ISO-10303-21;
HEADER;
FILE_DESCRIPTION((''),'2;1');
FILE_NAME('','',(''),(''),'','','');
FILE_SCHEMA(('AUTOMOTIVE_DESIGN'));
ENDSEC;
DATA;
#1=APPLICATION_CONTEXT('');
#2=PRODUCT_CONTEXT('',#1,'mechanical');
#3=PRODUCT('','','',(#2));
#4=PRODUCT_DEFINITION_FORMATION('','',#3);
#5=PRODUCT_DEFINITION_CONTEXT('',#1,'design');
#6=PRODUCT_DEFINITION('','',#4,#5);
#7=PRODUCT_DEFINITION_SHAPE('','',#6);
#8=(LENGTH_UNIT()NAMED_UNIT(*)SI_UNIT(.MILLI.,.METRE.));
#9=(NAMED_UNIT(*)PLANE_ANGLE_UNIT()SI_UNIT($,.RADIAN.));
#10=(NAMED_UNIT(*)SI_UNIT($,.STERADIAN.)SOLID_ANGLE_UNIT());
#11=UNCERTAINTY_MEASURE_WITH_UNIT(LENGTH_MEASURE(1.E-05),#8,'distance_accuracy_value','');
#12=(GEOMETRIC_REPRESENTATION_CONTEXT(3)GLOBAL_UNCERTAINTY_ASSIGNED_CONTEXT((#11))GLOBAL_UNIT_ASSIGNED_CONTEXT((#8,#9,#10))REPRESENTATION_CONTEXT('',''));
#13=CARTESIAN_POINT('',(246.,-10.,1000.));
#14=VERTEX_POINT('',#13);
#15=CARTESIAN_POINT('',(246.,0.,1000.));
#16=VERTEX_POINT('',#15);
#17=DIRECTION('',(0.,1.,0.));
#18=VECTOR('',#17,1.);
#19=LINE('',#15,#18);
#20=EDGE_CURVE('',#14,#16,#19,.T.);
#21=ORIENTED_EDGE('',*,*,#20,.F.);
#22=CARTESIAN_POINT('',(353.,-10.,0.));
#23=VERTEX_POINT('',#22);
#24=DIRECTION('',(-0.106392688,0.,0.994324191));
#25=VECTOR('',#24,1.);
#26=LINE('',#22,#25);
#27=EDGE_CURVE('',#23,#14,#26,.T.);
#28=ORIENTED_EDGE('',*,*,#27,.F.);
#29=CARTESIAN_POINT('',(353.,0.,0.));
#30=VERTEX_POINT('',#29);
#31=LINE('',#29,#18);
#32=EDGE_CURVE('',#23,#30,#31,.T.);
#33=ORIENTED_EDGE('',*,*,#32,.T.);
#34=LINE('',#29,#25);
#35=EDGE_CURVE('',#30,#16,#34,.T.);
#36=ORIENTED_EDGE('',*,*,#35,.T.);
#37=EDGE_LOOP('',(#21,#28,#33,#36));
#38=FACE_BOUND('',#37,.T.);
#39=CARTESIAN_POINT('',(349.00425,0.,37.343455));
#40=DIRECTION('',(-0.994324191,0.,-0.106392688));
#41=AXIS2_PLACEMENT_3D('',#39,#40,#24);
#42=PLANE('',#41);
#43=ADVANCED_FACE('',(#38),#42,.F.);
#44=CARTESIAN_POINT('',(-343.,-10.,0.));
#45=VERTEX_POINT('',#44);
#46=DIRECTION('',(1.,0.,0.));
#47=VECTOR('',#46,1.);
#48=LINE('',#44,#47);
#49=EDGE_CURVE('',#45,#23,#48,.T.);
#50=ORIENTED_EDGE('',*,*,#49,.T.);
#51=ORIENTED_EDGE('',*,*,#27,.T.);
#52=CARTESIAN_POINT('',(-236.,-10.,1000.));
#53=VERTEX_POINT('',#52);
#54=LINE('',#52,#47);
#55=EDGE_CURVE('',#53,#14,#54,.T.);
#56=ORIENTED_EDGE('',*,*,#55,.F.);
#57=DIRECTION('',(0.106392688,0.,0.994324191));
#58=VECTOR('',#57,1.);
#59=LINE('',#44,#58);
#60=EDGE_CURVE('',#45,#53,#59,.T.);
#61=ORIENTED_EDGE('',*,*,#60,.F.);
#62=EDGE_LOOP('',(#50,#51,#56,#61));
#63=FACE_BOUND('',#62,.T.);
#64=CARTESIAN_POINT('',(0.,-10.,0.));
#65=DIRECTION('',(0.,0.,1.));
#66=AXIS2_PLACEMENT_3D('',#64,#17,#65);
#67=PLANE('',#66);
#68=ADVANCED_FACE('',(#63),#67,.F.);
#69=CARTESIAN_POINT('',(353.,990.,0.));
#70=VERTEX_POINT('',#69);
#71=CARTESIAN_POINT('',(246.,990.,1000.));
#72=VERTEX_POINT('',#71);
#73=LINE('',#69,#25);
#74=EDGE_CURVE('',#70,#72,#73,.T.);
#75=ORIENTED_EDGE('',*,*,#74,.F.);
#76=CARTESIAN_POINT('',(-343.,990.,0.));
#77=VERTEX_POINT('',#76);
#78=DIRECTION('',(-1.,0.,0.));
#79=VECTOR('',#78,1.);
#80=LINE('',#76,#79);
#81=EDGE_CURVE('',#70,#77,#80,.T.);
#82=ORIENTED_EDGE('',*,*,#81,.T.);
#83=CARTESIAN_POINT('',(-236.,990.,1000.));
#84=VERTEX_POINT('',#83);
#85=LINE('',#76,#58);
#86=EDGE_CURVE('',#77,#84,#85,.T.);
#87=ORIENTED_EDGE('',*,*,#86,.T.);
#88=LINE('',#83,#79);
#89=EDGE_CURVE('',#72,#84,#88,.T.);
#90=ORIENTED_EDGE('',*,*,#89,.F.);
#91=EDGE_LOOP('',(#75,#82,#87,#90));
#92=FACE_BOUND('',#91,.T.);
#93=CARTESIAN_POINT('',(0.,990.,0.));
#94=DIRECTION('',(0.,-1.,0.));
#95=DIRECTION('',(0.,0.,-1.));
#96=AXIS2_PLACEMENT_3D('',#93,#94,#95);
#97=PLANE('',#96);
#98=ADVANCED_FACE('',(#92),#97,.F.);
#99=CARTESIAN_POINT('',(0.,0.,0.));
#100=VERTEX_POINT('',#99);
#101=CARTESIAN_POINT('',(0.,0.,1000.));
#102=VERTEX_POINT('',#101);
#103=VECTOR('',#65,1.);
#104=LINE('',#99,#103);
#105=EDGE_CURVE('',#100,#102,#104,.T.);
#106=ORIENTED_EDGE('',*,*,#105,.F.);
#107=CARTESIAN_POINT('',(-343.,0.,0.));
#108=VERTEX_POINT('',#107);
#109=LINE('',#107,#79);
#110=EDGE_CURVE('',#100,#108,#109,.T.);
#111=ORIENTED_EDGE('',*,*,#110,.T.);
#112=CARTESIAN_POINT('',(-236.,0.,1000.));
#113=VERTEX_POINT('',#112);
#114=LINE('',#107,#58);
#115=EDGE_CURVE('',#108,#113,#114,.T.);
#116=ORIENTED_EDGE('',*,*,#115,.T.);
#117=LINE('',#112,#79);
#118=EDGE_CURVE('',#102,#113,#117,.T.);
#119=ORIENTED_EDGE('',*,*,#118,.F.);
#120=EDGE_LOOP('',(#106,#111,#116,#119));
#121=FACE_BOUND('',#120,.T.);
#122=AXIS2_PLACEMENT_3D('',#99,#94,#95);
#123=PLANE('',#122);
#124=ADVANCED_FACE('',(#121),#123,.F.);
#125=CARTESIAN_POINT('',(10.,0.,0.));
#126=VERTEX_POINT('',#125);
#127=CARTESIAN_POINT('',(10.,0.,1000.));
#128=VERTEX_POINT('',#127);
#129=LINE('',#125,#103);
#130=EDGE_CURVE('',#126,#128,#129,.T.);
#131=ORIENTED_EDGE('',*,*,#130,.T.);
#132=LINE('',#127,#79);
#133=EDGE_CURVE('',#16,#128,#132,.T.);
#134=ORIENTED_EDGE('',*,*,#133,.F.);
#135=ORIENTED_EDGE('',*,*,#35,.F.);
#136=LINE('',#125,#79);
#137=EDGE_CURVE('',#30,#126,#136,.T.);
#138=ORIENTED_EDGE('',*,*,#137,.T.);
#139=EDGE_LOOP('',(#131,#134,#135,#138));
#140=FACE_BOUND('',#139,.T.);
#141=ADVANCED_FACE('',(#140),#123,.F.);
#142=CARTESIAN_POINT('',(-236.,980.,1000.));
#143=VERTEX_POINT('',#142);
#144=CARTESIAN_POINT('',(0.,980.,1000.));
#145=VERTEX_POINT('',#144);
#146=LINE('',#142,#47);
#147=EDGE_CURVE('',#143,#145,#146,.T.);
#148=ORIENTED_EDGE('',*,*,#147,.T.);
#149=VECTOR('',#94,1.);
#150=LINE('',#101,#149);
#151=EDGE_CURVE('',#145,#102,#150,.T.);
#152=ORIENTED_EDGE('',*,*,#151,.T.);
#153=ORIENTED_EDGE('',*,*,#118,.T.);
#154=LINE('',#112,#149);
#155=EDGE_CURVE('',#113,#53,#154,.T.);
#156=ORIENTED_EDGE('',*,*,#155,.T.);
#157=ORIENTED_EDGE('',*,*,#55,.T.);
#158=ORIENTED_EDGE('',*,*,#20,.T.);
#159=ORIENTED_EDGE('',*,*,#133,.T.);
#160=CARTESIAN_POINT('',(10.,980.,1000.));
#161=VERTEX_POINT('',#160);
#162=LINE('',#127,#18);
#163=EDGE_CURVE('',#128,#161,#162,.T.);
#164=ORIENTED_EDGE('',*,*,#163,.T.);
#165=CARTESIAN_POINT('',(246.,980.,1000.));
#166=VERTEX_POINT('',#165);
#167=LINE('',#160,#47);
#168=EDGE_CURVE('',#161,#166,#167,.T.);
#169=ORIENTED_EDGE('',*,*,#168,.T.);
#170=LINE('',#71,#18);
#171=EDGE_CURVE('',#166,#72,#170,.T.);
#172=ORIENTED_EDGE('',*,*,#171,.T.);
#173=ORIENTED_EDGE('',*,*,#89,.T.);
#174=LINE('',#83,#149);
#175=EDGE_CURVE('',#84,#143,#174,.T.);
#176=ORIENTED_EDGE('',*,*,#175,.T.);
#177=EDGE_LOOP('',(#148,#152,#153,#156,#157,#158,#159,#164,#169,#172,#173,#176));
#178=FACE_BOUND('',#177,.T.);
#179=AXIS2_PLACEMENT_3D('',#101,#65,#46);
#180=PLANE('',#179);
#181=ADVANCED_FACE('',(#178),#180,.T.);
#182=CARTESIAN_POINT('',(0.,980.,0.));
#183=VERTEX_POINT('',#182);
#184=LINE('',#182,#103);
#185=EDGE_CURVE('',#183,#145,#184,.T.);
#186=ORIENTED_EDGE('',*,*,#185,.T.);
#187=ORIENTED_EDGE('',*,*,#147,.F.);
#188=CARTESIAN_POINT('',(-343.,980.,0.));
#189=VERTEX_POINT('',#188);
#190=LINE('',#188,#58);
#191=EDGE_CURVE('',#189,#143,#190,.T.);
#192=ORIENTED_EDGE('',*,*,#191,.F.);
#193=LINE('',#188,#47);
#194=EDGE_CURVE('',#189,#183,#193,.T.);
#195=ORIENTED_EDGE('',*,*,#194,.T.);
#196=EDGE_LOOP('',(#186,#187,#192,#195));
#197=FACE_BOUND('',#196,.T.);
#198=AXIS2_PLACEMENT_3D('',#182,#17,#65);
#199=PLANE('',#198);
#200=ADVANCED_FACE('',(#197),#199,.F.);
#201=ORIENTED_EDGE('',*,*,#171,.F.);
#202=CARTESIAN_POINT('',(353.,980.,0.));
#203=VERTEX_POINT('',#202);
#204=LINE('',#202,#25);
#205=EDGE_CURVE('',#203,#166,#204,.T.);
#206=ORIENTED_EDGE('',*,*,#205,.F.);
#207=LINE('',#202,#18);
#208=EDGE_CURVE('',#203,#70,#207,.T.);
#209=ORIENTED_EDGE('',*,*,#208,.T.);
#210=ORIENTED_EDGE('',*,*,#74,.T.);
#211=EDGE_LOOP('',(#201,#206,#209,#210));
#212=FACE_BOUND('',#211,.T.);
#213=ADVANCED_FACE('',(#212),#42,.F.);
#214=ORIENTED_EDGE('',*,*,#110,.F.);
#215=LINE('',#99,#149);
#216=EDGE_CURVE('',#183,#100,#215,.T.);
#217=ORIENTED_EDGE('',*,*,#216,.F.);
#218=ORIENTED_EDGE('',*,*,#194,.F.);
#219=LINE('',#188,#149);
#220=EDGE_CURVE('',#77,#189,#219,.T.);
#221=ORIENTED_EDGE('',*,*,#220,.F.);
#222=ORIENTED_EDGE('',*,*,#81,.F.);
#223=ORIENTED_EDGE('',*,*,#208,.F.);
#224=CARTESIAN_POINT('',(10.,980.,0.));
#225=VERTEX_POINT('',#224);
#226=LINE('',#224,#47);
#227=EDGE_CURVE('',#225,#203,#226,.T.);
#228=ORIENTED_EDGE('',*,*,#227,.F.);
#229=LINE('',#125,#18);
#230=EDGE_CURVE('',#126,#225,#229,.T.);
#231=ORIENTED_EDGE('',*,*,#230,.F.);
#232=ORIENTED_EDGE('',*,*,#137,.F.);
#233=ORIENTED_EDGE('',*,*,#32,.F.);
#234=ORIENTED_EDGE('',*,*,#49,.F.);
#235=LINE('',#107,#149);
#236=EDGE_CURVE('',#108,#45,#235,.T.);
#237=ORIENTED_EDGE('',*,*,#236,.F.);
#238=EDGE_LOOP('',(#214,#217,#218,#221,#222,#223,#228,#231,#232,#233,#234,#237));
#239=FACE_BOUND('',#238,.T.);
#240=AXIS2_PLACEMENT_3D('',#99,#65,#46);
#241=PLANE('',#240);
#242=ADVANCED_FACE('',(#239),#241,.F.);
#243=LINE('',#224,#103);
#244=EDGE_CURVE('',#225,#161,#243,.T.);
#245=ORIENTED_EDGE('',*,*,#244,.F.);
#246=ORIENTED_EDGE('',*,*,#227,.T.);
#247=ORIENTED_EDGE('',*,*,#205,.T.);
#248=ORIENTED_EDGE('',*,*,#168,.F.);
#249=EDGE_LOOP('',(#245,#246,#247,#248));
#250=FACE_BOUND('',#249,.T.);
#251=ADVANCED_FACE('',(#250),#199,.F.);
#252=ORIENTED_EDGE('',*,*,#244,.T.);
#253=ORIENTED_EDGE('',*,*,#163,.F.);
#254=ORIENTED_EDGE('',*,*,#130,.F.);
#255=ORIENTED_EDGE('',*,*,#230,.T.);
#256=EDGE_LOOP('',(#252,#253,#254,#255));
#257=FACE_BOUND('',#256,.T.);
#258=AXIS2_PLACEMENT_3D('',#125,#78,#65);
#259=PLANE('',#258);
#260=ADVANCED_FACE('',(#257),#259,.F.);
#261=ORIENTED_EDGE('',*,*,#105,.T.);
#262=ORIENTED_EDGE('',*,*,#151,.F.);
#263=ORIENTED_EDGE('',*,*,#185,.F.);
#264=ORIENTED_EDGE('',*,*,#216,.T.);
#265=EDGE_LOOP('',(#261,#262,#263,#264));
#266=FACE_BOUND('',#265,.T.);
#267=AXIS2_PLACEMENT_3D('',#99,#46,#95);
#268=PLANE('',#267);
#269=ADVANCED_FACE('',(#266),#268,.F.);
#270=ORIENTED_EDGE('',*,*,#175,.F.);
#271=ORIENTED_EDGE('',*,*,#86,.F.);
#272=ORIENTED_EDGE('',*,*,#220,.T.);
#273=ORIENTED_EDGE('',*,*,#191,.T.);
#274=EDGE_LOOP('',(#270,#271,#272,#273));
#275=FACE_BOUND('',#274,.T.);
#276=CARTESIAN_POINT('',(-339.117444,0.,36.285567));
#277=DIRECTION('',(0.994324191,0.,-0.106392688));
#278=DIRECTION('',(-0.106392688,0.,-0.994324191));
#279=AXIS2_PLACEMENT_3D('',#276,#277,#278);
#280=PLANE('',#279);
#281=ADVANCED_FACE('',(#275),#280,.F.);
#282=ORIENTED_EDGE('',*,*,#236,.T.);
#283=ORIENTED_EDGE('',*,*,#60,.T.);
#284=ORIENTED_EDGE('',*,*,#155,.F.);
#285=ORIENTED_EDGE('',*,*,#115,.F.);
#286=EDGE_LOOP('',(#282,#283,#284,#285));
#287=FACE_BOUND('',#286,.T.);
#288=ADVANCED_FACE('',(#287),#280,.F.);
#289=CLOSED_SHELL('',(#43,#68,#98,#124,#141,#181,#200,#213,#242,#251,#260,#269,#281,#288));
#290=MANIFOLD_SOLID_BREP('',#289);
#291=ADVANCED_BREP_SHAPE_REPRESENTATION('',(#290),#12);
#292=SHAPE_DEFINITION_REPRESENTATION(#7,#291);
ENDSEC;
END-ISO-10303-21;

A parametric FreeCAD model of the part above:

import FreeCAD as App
import Part
import Sketcher


def add_polygon(sketch, points):
    """Adds a closed chain of lines whose ends are joined by coincident constraints."""
    first, n = sketch.GeometryCount, len(points)
    for a, b in zip(points, points[1:] + points[:1]):
        sketch.addGeometry(Part.LineSegment(App.Vector(*a, 0), App.Vector(*b, 0)), False)
    for i in range(n):
        sketch.addConstraint(Sketcher.Constraint("Coincident", first + i, 2, first + (i + 1) % n, 1))

doc = App.newDocument("Part")
params = doc.addObject("Spreadsheet::Sheet", "Params")
for row, (alias, value) in enumerate([
    ("sketch1_width", "343 mm"),
    ("sketch1_width2", "696 mm"),
    ("sketch1_height", "10 mm"),
    ("sketch1_height2", "980 mm"),
    ("sketch2_width", "236 mm"),
    ("sketch2_width2", "482 mm"),
    ("sketch2_height", "980 mm"),
    ("sketch2_height2", "10 mm"),
], start=1):
    params.set(f"A{row}", alias)
    params.set(f"B{row}", "=" + value)
    params.setAlias(f"B{row}", alias)

body = doc.addObject("PartDesign::Body", "Body")

# Sketch on XY plane
sketch1 = doc.addObject("Sketcher::SketchObject", "Sketch")
body.addObject(sketch1)
sketch1.AttachmentSupport = (doc.XY_Plane, [""])
sketch1.MapMode = "FlatFace"
add_polygon(sketch1, [(10, 980), (353, 980), (353, 990), (-343, 990), (-343, 980), (0, 980), (0, 0), (-343, 0), (-343, -10), (353, -10), (353, 0), (10, 0)])  # lines 0-11
sketch1.addConstraint([
    Sketcher.Constraint("Horizontal", 0),
    Sketcher.Constraint("Vertical", 1),
    Sketcher.Constraint("Horizontal", 2),
    Sketcher.Constraint("Vertical", 3),
    Sketcher.Constraint("Horizontal", 4),
    Sketcher.Constraint("Vertical", 5),
    Sketcher.Constraint("Horizontal", 6),
    Sketcher.Constraint("Vertical", 7),
    Sketcher.Constraint("Horizontal", 8),
    Sketcher.Constraint("Vertical", 9),
    Sketcher.Constraint("Horizontal", 10),
    Sketcher.Constraint("Vertical", 11),
    Sketcher.Constraint("Coincident", 5, 2, -1, 1),
    Sketcher.Constraint("PointOnObject", 9, 2, -1),
    Sketcher.Constraint("Horizontal", 0, 2, 3, 2),
    Sketcher.Constraint("Vertical", 3, 2, 6, 2),
    Sketcher.Constraint("Vertical", 1, 2, 8, 2),
    Sketcher.Constraint("Equal", 0, 4),
    Sketcher.Constraint("Equal", 3, 7),
    Sketcher.Constraint("DistanceX", 0, 1, 0, 2, 343.0),
    Sketcher.Constraint("DistanceX", 2, 2, 2, 1, 696.0),
    Sketcher.Constraint("DistanceY", 1, 1, 1, 2, 10.0),
    Sketcher.Constraint("DistanceY", 5, 2, 5, 1, 980.0),
])
sketch1.setExpression("Constraints[31]", "Params.sketch1_width")
sketch1.setExpression("Constraints[32]", "Params.sketch1_width2")
sketch1.setExpression("Constraints[33]", "Params.sketch1_height")
sketch1.setExpression("Constraints[34]", "Params.sketch1_height2")

# Sketch on XY plane
sketch2 = doc.addObject("Sketcher::SketchObject", "Sketch001")
body.addObject(sketch2)
sketch2.AttachmentSupport = (doc.XY_Plane, [""])
sketch2.MapMode = "FlatFace"
sketch2.AttachmentOffset = App.Placement(App.Vector(0, 0, 1000), App.Rotation())
add_polygon(sketch2, [(0, 980), (0, 0), (-236, 0), (-236, -10), (246, -10), (246, 0), (10, 0), (10, 980), (246, 980), (246, 990), (-236, 990), (-236, 980)])  # lines 0-11
sketch2.addConstraint([
    Sketcher.Constraint("Vertical", 0),
    Sketcher.Constraint("Horizontal", 1),
    Sketcher.Constraint("Vertical", 2),
    Sketcher.Constraint("Horizontal", 3),
    Sketcher.Constraint("Vertical", 4),
    Sketcher.Constraint("Horizontal", 5),
    Sketcher.Constraint("Vertical", 6),
    Sketcher.Constraint("Horizontal", 7),
    Sketcher.Constraint("Vertical", 8),
    Sketcher.Constraint("Horizontal", 9),
    Sketcher.Constraint("Vertical", 10),
    Sketcher.Constraint("Horizontal", 11),
    Sketcher.Constraint("Coincident", 0, 2, -1, 1),
    Sketcher.Constraint("PointOnObject", 4, 2, -1),
    Sketcher.Constraint("Horizontal", 7, 2, 10, 2),
    Sketcher.Constraint("Vertical", 4, 2, 7, 2),
    Sketcher.Constraint("Vertical", 2, 2, 9, 2),
    Sketcher.Constraint("Equal", 1, 5),
    Sketcher.Constraint("Equal", 4, 8),
    Sketcher.Constraint("DistanceX", 1, 2, 1, 1, 236.0),
    Sketcher.Constraint("DistanceX", 3, 1, 3, 2, 482.0),
    Sketcher.Constraint("DistanceY", 0, 2, 0, 1, 980.0),
    Sketcher.Constraint("DistanceY", 2, 2, 2, 1, 10.0),
])
sketch2.setExpression("Constraints[31]", "Params.sketch2_width")
sketch2.setExpression("Constraints[32]", "Params.sketch2_width2")
sketch2.setExpression("Constraints[33]", "Params.sketch2_height")
sketch2.setExpression("Constraints[34]", "Params.sketch2_height2")

additiveloft = doc.addObject("PartDesign::AdditiveLoft", "AdditiveLoft")
body.addObject(additiveloft)
additiveloft.Profile = sketch1
additiveloft.Sections = [sketch2]

doc.recompute()
